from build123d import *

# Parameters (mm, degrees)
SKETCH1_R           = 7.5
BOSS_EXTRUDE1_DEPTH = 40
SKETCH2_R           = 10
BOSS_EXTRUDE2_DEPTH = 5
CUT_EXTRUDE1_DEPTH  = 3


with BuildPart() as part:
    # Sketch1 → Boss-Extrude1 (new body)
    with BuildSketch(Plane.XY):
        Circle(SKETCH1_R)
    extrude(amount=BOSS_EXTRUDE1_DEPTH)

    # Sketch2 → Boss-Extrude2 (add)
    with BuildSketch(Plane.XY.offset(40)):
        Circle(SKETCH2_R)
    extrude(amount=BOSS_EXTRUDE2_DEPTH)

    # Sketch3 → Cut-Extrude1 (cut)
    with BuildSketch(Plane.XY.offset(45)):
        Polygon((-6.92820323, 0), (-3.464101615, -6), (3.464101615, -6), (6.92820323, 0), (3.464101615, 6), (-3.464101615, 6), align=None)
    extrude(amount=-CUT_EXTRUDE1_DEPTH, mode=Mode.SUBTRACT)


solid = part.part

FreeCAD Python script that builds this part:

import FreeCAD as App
import Part
import Sketcher
from FreeCAD import Vector
Q = App.Units.Quantity


def add_polygon(sketch, points):
    """Adds a closed chain of lines whose ends are joined by coincident constraints."""
    first, n = sketch.GeometryCount, len(points)
    for a, b in zip(points, points[1:] + points[:1]):
        sketch.addGeometry(Part.LineSegment(App.Vector(*a, 0), App.Vector(*b, 0)), False)
    for i in range(n):
        sketch.addConstraint(Sketcher.Constraint("Coincident", first + i, 2, first + (i + 1) % n, 1))

doc = App.newDocument("Part")
body = doc.addObject("PartDesign::Body", "Body")

# Sketch on XY plane
sketch1 = body.newObject("Sketcher::SketchObject", "Sketch")
sketch1.AttachmentSupport = (doc.getObject("XY_Plane"), [""])
sketch1.MapMode = "FlatFace"
sketch1.addGeometry(Part.Circle(Vector(0, 0, 0), Vector(0, 0, 1), 8), False)
sketch1.addConstraint(Sketcher.Constraint("Coincident", 0, 3, -1, 1))
sketch1.addConstraint(Sketcher.Constraint("Diameter", 0, 15.0))
pad1 = body.newObject("PartDesign::Pad", "Pad")
pad1.Profile = sketch1
pad1.Length = 40

# Sketch on XY plane
sketch2 = body.newObject("Sketcher::SketchObject", "Sketch001")
sketch2.AttachmentSupport = (doc.getObject("XY_Plane"), [""])
sketch2.MapMode = "FlatFace"
sketch2.AttachmentOffset = App.Placement(Vector(0, 0, 40), App.Rotation())
sketch2.addGeometry(Part.Circle(Vector(0, 0, 0), Vector(0, 0, 1), 10), False)
sketch2.addConstraint(Sketcher.Constraint("Coincident", 0, 3, -1, 1))
sketch2.addConstraint(Sketcher.Constraint("Diameter", 0, 20.0))
pad2 = body.newObject("PartDesign::Pad", "Pad001")
pad2.Profile = sketch2
pad2.Length = 5

# Sketch on XY plane
sketch3 = body.newObject("Sketcher::SketchObject", "Sketch002")
sketch3.AttachmentSupport = (doc.getObject("XY_Plane"), [""])
sketch3.MapMode = "FlatFace"
sketch3.AttachmentOffset = App.Placement(Vector(0, 0, 45), App.Rotation())
add_polygon(sketch3, [(-7, 0), (-3, -6), (3, -6), (7, 0), (3, 6), (-3, 6)])  # lines 0-5
sketch3.addConstraint(Sketcher.Constraint("Horizontal", 1))
sketch3.addConstraint(Sketcher.Constraint("Horizontal", 4))
sketch3.addConstraint(Sketcher.Constraint("Symmetric", 0, 2, 3, 2, -1, 1))
sketch3.addConstraint(Sketcher.Constraint("Symmetric", 2, 2, 5, 2, -1, 1))
sketch3.addConstraint(Sketcher.Constraint("PointOnObject", 2, 2, -1))
sketch3.addConstraint(Sketcher.Constraint("Parallel", 2, 5))
sketch3.addConstraint(Sketcher.Constraint("Vertical", 1, 2, 3, 2))
sketch3.addConstraint(Sketcher.Constraint("Angle", 0, Q("-60 deg")))
sketch3.addConstraint(Sketcher.Constraint("DistanceY", 0, 2, -1, 1, 6.0))
sketch3.addConstraint(Sketcher.Constraint("DistanceX", 0, 2, -1, 1, 3.464102))
pocket1 = body.newObject("PartDesign::Pocket", "Pocket")
pocket1.Profile = sketch3
pocket1.Length = 3

doc.recompute()
